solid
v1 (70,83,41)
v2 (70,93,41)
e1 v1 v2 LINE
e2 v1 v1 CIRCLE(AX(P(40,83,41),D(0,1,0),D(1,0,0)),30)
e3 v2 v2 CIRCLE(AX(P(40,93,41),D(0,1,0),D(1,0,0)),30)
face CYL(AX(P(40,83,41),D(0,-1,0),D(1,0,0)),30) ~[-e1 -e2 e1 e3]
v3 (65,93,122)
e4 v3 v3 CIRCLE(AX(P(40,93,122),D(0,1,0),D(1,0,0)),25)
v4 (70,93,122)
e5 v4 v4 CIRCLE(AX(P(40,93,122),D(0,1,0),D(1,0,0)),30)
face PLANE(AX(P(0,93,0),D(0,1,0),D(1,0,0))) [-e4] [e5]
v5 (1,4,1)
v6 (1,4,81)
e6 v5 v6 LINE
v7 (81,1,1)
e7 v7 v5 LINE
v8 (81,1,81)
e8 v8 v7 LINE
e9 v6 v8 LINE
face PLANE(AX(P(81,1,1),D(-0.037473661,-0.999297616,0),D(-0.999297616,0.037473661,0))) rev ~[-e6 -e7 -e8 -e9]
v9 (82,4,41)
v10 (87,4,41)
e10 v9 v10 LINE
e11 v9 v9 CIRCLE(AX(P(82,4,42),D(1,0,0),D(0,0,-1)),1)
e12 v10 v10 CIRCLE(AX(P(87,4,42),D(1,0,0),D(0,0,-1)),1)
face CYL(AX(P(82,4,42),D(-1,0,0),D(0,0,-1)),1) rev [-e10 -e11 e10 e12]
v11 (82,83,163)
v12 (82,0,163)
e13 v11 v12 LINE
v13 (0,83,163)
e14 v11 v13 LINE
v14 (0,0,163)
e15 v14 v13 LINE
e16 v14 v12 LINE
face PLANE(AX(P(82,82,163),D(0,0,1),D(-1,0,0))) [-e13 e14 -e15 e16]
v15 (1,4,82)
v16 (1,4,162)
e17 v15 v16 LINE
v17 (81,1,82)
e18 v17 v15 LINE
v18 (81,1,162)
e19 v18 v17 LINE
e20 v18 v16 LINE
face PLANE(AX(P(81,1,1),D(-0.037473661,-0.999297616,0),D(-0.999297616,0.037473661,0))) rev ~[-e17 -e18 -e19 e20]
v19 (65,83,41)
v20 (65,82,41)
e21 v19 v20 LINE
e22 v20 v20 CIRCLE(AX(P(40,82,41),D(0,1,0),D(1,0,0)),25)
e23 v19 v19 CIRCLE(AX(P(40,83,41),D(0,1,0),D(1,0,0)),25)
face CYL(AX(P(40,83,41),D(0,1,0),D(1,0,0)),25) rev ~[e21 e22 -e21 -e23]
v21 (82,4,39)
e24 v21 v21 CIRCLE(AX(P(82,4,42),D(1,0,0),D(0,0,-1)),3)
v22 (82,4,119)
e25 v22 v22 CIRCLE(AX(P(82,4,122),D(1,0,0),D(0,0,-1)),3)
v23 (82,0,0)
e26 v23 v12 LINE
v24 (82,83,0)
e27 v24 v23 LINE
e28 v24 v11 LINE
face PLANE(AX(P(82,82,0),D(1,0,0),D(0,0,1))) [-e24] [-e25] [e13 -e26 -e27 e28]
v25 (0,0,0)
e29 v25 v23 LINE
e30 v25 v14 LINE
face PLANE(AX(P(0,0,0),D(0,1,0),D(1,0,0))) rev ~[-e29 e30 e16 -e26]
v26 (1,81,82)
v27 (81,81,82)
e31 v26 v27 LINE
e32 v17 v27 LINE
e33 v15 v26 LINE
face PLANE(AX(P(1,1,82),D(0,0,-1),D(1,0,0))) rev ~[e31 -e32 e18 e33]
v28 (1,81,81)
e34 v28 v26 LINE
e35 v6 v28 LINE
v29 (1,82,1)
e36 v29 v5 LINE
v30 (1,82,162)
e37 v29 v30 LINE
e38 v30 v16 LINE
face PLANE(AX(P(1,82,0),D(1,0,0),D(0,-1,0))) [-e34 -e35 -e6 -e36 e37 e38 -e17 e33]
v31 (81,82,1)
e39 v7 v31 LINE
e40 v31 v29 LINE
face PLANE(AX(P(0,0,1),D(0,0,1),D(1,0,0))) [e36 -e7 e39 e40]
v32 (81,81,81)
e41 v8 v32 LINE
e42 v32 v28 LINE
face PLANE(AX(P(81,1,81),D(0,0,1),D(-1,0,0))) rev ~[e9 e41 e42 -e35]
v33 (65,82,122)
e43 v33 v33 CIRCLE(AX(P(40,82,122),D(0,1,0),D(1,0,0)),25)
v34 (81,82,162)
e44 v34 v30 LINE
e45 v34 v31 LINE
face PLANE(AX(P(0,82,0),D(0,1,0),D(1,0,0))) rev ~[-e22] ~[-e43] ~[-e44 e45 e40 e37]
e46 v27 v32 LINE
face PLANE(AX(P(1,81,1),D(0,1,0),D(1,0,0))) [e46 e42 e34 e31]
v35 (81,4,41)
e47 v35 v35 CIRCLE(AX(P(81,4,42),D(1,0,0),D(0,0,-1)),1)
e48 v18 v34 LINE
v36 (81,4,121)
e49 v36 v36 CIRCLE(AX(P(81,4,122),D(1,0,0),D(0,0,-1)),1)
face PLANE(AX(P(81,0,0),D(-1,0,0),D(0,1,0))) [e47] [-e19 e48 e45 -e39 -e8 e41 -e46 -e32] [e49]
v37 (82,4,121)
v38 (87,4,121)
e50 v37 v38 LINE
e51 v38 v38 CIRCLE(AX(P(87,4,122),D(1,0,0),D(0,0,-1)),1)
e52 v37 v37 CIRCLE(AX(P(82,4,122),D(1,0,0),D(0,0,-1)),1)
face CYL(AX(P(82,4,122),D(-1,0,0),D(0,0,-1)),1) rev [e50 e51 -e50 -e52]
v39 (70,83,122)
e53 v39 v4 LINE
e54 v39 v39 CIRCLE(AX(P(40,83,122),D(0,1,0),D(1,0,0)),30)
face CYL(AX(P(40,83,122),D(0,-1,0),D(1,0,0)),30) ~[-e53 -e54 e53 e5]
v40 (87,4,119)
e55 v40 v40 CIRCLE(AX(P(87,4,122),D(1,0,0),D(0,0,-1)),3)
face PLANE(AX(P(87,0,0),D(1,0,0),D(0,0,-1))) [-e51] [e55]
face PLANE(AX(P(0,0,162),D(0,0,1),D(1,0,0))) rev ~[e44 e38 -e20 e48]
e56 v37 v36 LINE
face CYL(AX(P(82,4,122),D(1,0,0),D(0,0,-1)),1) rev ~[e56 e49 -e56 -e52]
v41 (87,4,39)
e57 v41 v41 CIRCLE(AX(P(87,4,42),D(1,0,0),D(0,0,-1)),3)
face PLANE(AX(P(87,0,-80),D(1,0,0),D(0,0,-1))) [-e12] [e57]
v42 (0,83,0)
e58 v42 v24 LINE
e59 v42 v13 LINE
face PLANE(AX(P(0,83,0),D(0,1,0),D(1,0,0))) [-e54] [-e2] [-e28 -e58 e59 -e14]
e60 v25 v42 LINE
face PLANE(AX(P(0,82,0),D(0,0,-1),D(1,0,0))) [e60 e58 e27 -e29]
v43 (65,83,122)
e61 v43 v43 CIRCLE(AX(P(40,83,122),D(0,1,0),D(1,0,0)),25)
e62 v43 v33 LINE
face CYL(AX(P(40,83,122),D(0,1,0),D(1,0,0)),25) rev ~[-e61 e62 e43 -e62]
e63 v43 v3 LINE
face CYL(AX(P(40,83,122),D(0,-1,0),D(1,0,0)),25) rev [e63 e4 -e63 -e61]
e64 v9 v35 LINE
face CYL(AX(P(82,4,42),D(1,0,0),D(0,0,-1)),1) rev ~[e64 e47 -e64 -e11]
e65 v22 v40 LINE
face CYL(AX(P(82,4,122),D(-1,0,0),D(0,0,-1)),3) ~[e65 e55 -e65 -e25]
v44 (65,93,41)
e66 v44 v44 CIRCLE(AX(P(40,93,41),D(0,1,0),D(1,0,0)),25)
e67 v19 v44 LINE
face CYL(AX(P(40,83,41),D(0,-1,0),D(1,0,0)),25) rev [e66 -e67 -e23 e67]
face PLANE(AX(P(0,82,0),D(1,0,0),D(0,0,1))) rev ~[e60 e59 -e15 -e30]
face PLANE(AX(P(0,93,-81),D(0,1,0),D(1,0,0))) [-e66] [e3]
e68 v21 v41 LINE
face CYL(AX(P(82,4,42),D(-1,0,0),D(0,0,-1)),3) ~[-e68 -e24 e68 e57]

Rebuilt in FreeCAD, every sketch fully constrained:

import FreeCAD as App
import Part
import Sketcher

V = App.Vector


def faces_at(feature, points):
    """Names of the faces that lie closest to the given points."""
    faces = feature.Shape.Faces
    near = lambda p: min(range(len(faces)), key=lambda i: faces[i].distToShape(Part.Vertex(*p))[0])
    return sorted({f"Face{near(p) + 1}" for p in points})


def add_polygon(sketch, points):
    """Adds a closed chain of lines whose ends are joined by coincident constraints."""
    first, n = sketch.GeometryCount, len(points)
    for a, b in zip(points, points[1:] + points[:1]):
        sketch.addGeometry(Part.LineSegment(App.Vector(*a, 0), App.Vector(*b, 0)), False)
    for i in range(n):
        sketch.addConstraint(Sketcher.Constraint("Coincident", first + i, 2, first + (i + 1) % n, 1))

doc = App.newDocument("Part")
params = doc.addObject("Spreadsheet::Sheet", "Params")
for row, (alias, value) in enumerate([
    ("sketch1_width", "82 mm"),
    ("pad1_length", "163 mm"),
    ("thickness_wall", "1 mm"),
    ("sketch2_diameter", "2 mm"),
    ("sketch2_diameter2", "6 mm"),
    ("pad2_length", "5 mm"),
    ("sketch3_diameter", "2 mm"),
    ("pocket1_length", "5 mm"),
    ("sketch4_width", "82 mm"),
    ("sketch4_height", "163 mm"),
    ("pad3_length", "1 mm"),
    ("sketch5_diameter", "50 mm"),
    ("sketch5_diameter2", "60 mm"),
    ("pad4_length", "10 mm"),
    ("sketch6_diameter", "50 mm"),
    ("pocket2_length", "10 mm"),
    ("sketch7_width", "80 mm"),
    ("sketch7_height", "1 mm"),
    ("pad5_length", "80 mm"),
    ("sketch8_height", "3 mm"),
    ("sketch8_width", "80 mm"),
    ("pad6_length", "161 mm"),
    ("linearpattern_pitch", "81 mm"),
    ("linearpattern2_pitch", "80 mm"),
], start=1):
    params.set(f"A{row}", alias)
    params.set(f"B{row}", "=" + value)
    params.setAlias(f"B{row}", alias)

body = doc.addObject("PartDesign::Body", "Body")

sketch1 = body.newObject("Sketcher::SketchObject", "Sketch")
sketch1.AttachmentSupport = (doc.getObject("XY_Plane"), [""])
sketch1.MapMode = "FlatFace"
add_polygon(sketch1, [(0, 82), (0, 0), (82, 0), (82, 82)])
sketch1.addConstraint([
    Sketcher.Constraint("Vertical", 0),
    Sketcher.Constraint("Horizontal", 1),
    Sketcher.Constraint("Vertical", 2),
    Sketcher.Constraint("Horizontal", 3),
    Sketcher.Constraint("Coincident", 0, 2, -1, 1),
    Sketcher.Constraint("Equal", 3, 0),
    Sketcher.Constraint("DistanceX", 1, 1, 1, 2, 82.0),
])
sketch1.setExpression("Constraints[10]", "Params.sketch1_width")
pad1 = body.newObject("PartDesign::Pad", "Pad")
pad1.Profile = sketch1
pad1.setExpression("Length", "Params.pad1_length")
doc.recompute()

thickness = body.newObject("PartDesign::Thickness", "Thickness")
thickness.Base = (pad1, faces_at(pad1, [(54.667, 82, 54.333)]))
thickness.setExpression("Value", "Params.thickness_wall")
thickness.Reversed = True
thickness.Join = "Intersection"

sketch2 = body.newObject("Sketcher::SketchObject", "Sketch001")
sketch2.AttachmentSupport = (doc.getObject("YZ_Plane"), [""])
sketch2.MapMode = "FlatFace"
sketch2.AttachmentOffset = App.Placement(V(0, 0, 82), App.Rotation())
sketch2.addGeometry([
    Part.Circle(V(4, 122, 0), V(0, 0, 1), 3),
    Part.Circle(V(4, 122, 0), V(0, 0, 1), 1),
], False)
sketch2.addConstraint([
    Sketcher.Constraint("Coincident", 1, 3, 0, 3),
    Sketcher.Constraint("Diameter", 1, 2.0),
    Sketcher.Constraint("Diameter", 0, 6.0),
    Sketcher.Constraint("DistanceX", -1, 1, 0, 3, 4.0),
    Sketcher.Constraint("DistanceY", -1, 1, 0, 3, 122.0),
])
sketch2.setExpression("Constraints[1]", "Params.sketch2_diameter")
sketch2.setExpression("Constraints[2]", "Params.sketch2_diameter2")
pad2 = body.newObject("PartDesign::Pad", "Pad001")
pad2.Profile = sketch2
pad2.setExpression("Length", "Params.pad2_length")

sketch3 = body.newObject("Sketcher::SketchObject", "Sketch002")
sketch3.AttachmentSupport = (doc.getObject("YZ_Plane"), [""])
sketch3.MapMode = "FlatFace"
sketch3.AttachmentOffset = App.Placement(V(0, 0, 82), App.Rotation())
sketch3.addGeometry(Part.Circle(V(4, 122, 0), V(0, 0, 1), 1), False)
sketch3.addConstraint([
    Sketcher.Constraint("Diameter", 0, 2.0),
    Sketcher.Constraint("DistanceX", -1, 1, 0, 3, 4.0),
    Sketcher.Constraint("DistanceY", -1, 1, 0, 3, 122.0),
])
sketch3.setExpression("Constraints[0]", "Params.sketch3_diameter")
pocket1 = body.newObject("PartDesign::Pocket", "Pocket")
pocket1.Profile = sketch3
pocket1.setExpression("Length", "Params.pocket1_length")

sketch4 = body.newObject("Sketcher::SketchObject", "Sketch003")
sketch4.AttachmentSupport = (doc.getObject("XZ_Plane"), [""])
sketch4.MapMode = "FlatFace"
sketch4.AttachmentOffset = App.Placement(V(0, 0, -82), App.Rotation())
add_polygon(sketch4, [(82, 0), (0, 0), (0, 163), (82, 163)])
sketch4.addConstraint([
    Sketcher.Constraint("Horizontal", 0),
    Sketcher.Constraint("Vertical", 1),
    Sketcher.Constraint("Horizontal", 2),
    Sketcher.Constraint("Vertical", 3),
    Sketcher.Constraint("Coincident", 0, 2, -1, 1),
    Sketcher.Constraint("DistanceX", 0, 2, 0, 1, 82.0),
    Sketcher.Constraint("DistanceY", 1, 1, 1, 2, 163.0),
])
sketch4.setExpression("Constraints[9]", "Params.sketch4_width")
sketch4.setExpression("Constraints[10]", "Params.sketch4_height")
pad3 = body.newObject("PartDesign::Pad", "Pad002")
pad3.Profile = sketch4
pad3.setExpression("Length", "Params.pad3_length")
pad3.Reversed = True

sketch5 = body.newObject("Sketcher::SketchObject", "Sketch004")
sketch5.AttachmentSupport = (doc.getObject("XZ_Plane"), [""])
sketch5.MapMode = "FlatFace"
sketch5.AttachmentOffset = App.Placement(V(0, 0, -83), App.Rotation())
sketch5.addGeometry([
    Part.Circle(V(40, 122, 0), V(0, 0, 1), 30),
    Part.Circle(V(40, 122, 0), V(0, 0, 1), 25),
], False)
sketch5.addConstraint([
    Sketcher.Constraint("Coincident", 1, 3, 0, 3),
    Sketcher.Constraint("Diameter", 1, 50.0),
    Sketcher.Constraint("Diameter", 0, 60.0),
    Sketcher.Constraint("DistanceX", -1, 1, 0, 3, 40.0),
    Sketcher.Constraint("DistanceY", -1, 1, 0, 3, 122.0),
])
sketch5.setExpression("Constraints[1]", "Params.sketch5_diameter")
sketch5.setExpression("Constraints[2]", "Params.sketch5_diameter2")
pad4 = body.newObject("PartDesign::Pad", "Pad003")
pad4.Profile = sketch5
pad4.setExpression("Length", "Params.pad4_length")
pad4.Reversed = True

sketch6 = body.newObject("Sketcher::SketchObject", "Sketch005")
sketch6.AttachmentSupport = (doc.getObject("XZ_Plane"), [""])
sketch6.MapMode = "FlatFace"
sketch6.AttachmentOffset = App.Placement(V(0, 0, -83), App.Rotation())
sketch6.addGeometry(Part.Circle(V(40, 122, 0), V(0, 0, 1), 25), False)
sketch6.addConstraint([
    Sketcher.Constraint("Diameter", 0, 50.0),
    Sketcher.Constraint("DistanceX", -1, 1, 0, 3, 40.0),
    Sketcher.Constraint("DistanceY", -1, 1, 0, 3, 122.0),
])
sketch6.setExpression("Constraints[0]", "Params.sketch6_diameter")
pocket2 = body.newObject("PartDesign::Pocket", "Pocket001")
pocket2.Profile = sketch6
pocket2.setExpression("Length", "Params.pocket2_length")
pocket2.Reversed = True

sketch7 = body.newObject("Sketcher::SketchObject", "Sketch006")
sketch7.AttachmentSupport = (doc.getObject("XZ_Plane"), [""])
sketch7.MapMode = "FlatFace"
sketch7.AttachmentOffset = App.Placement(V(0, 0, -1), App.Rotation())
add_polygon(sketch7, [(81, 81), (1, 81), (1, 82), (81, 82)])
sketch7.addConstraint([
    Sketcher.Constraint("Horizontal", 0),
    Sketcher.Constraint("Vertical", 1),
    Sketcher.Constraint("Horizontal", 2),
    Sketcher.Constraint("Vertical", 3),
    Sketcher.Constraint("DistanceX", 0, 2, 0, 1, 80.0),
    Sketcher.Constraint("DistanceY", 1, 1, 1, 2, 1.0),
    Sketcher.Constraint("DistanceX", -1, 1, 0, 2, 1.0),
    Sketcher.Constraint("DistanceY", -1, 1, 0, 2, 81.0),
])
sketch7.setExpression("Constraints[8]", "Params.sketch7_width")
sketch7.setExpression("Constraints[9]", "Params.sketch7_height")
pad5 = body.newObject("PartDesign::Pad", "Pad004")
pad5.Profile = sketch7
pad5.setExpression("Length", "Params.pad5_length")
pad5.Reversed = True

sketch8 = body.newObject("Sketcher::SketchObject", "Sketch007")
sketch8.AttachmentSupport = (doc.getObject("XY_Plane"), [""])
sketch8.MapMode = "FlatFace"
sketch8.AttachmentOffset = App.Placement(V(0, 0, 1), App.Rotation())
add_polygon(sketch8, [(1, 4), (1, 1), (81, 1)])
sketch8.addConstraint([
    Sketcher.Constraint("Vertical", 0),
    Sketcher.Constraint("Horizontal", 1),
    Sketcher.Constraint("DistanceY", 0, 2, 0, 1, 3.0),
    Sketcher.Constraint("DistanceX", 1, 1, 1, 2, 80.0),
    Sketcher.Constraint("DistanceX", -1, 1, 0, 2, 1.0),
    Sketcher.Constraint("DistanceY", -1, 1, 0, 2, 1.0),
])
sketch8.setExpression("Constraints[5]", "Params.sketch8_height")
sketch8.setExpression("Constraints[6]", "Params.sketch8_width")
pad6 = body.newObject("PartDesign::Pad", "Pad005")
pad6.Profile = sketch8
pad6.setExpression("Length", "Params.pad6_length")
doc.recompute()

linearpattern = body.newObject("PartDesign::LinearPattern", "LinearPattern")
linearpattern.Originals = [pad4, pocket2]
linearpattern.Direction = (doc.getObject("Z_Axis"), [""])
linearpattern.Mode = "offset"
linearpattern.setExpression("Offset", "Params.linearpattern_pitch")
linearpattern.Occurrences = 2
linearpattern.Reversed = True
body.Tip = linearpattern
doc.recompute()

linearpattern2 = body.newObject("PartDesign::LinearPattern", "LinearPattern001")
linearpattern2.Originals = [pad2, pocket1]
linearpattern2.Direction = (doc.getObject("Z_Axis"), [""])
linearpattern2.Mode = "offset"
linearpattern2.setExpression("Offset", "Params.linearpattern2_pitch")
linearpattern2.Occurrences = 2
linearpattern2.Reversed = True
body.Tip = linearpattern2

doc.recompute()
